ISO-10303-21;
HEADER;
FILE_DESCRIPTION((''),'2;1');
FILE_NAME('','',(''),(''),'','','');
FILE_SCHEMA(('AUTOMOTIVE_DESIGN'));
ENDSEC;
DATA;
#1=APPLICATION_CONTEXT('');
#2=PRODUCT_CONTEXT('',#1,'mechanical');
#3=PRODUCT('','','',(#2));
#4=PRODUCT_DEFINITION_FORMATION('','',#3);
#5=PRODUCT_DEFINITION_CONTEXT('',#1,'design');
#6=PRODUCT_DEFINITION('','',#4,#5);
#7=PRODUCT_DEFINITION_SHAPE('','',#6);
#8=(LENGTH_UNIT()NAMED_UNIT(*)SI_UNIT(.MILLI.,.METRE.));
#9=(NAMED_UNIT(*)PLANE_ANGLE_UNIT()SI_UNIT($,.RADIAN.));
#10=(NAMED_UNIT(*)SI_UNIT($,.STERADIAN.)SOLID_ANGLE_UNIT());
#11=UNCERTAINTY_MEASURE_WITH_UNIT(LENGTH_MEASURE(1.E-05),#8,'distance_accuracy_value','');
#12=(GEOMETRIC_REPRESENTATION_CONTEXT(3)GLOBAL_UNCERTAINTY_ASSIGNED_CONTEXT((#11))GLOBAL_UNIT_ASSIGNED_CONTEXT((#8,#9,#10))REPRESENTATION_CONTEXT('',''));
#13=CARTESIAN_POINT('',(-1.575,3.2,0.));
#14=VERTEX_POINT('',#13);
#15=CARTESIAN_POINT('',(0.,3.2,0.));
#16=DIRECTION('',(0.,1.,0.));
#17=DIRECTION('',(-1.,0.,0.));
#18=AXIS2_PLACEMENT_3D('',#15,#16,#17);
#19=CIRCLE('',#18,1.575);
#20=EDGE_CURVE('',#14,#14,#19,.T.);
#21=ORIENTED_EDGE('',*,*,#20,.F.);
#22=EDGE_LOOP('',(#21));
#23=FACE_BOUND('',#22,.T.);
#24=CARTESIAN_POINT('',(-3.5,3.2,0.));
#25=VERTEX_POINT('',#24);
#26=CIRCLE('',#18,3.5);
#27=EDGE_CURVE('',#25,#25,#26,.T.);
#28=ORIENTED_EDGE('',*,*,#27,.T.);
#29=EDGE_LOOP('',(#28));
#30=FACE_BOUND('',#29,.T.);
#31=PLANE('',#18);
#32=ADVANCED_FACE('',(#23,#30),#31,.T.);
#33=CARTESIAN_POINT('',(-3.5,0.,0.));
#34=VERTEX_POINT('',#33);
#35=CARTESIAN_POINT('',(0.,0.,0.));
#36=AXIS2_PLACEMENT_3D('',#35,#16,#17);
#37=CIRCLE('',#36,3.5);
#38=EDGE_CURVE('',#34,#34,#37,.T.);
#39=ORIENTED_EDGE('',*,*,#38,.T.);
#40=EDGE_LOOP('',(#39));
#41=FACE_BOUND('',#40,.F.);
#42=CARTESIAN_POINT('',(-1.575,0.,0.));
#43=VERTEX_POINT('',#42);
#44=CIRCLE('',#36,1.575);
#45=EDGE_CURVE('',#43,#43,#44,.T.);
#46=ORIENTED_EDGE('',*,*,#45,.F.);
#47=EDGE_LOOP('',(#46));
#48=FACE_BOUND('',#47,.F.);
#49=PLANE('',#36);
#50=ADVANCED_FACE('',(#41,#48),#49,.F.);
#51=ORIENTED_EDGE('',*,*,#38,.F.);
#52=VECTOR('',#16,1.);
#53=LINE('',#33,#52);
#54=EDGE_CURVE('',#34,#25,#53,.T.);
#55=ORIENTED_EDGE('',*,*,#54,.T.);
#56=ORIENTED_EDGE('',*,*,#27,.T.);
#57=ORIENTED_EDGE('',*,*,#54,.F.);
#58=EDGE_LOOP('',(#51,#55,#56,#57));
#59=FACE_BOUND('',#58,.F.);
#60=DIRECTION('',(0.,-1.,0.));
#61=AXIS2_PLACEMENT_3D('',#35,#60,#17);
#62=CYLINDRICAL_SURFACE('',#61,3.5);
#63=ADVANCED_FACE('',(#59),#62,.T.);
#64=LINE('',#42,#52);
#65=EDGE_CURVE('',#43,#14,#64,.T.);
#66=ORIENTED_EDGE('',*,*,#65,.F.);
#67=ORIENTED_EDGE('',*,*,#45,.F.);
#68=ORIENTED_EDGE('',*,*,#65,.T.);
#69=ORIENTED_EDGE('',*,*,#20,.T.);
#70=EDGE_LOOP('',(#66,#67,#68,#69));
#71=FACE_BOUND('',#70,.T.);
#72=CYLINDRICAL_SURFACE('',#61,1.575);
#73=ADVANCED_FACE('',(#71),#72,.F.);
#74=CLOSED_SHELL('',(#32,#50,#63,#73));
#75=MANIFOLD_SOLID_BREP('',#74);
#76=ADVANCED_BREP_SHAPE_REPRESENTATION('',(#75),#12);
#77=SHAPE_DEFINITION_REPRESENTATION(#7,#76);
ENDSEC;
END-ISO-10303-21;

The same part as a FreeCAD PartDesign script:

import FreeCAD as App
import Part
import Sketcher

V = App.Vector

doc = App.newDocument("Part")
params = doc.addObject("Spreadsheet::Sheet", "Params")
for row, (alias, value) in enumerate([
    ("sketch1_diameter", "7 mm"),
    ("sketch1_diameter2", "3.15 mm"),
    ("pad1_length", "3.2 mm"),
], start=1):
    params.set(f"A{row}", alias)
    params.set(f"B{row}", "=" + value)
    params.setAlias(f"B{row}", alias)

body = doc.addObject("PartDesign::Body", "Body")

# Sketch on XZ plane
sketch1 = doc.addObject("Sketcher::SketchObject", "Sketch")
body.addObject(sketch1)
sketch1.AttachmentSupport = (doc.XZ_Plane, [""])
sketch1.MapMode = "FlatFace"
sketch1.addGeometry([
    Part.Circle(V(0, 0, 0), V(0, 0, 1), 3.5),
    Part.Circle(V(0, 0, 0), V(0, 0, 1), 1.6),
], False)
sketch1.addConstraint([
    Sketcher.Constraint("Coincident", 0, 3, -1, 1),
    Sketcher.Constraint("Coincident", 1, 3, -1, 1),
    Sketcher.Constraint("Diameter", 0, 7.0),
    Sketcher.Constraint("Diameter", 1, 3.15),
])
sketch1.setExpression("Constraints[2]", "Params.sketch1_diameter")
sketch1.setExpression("Constraints[3]", "Params.sketch1_diameter2")
pad1 = doc.addObject("PartDesign::Pad", "Pad")
body.addObject(pad1)
pad1.Profile = sketch1
pad1.setExpression("Length", "Params.pad1_length")
pad1.Reversed = True

doc.recompute()
